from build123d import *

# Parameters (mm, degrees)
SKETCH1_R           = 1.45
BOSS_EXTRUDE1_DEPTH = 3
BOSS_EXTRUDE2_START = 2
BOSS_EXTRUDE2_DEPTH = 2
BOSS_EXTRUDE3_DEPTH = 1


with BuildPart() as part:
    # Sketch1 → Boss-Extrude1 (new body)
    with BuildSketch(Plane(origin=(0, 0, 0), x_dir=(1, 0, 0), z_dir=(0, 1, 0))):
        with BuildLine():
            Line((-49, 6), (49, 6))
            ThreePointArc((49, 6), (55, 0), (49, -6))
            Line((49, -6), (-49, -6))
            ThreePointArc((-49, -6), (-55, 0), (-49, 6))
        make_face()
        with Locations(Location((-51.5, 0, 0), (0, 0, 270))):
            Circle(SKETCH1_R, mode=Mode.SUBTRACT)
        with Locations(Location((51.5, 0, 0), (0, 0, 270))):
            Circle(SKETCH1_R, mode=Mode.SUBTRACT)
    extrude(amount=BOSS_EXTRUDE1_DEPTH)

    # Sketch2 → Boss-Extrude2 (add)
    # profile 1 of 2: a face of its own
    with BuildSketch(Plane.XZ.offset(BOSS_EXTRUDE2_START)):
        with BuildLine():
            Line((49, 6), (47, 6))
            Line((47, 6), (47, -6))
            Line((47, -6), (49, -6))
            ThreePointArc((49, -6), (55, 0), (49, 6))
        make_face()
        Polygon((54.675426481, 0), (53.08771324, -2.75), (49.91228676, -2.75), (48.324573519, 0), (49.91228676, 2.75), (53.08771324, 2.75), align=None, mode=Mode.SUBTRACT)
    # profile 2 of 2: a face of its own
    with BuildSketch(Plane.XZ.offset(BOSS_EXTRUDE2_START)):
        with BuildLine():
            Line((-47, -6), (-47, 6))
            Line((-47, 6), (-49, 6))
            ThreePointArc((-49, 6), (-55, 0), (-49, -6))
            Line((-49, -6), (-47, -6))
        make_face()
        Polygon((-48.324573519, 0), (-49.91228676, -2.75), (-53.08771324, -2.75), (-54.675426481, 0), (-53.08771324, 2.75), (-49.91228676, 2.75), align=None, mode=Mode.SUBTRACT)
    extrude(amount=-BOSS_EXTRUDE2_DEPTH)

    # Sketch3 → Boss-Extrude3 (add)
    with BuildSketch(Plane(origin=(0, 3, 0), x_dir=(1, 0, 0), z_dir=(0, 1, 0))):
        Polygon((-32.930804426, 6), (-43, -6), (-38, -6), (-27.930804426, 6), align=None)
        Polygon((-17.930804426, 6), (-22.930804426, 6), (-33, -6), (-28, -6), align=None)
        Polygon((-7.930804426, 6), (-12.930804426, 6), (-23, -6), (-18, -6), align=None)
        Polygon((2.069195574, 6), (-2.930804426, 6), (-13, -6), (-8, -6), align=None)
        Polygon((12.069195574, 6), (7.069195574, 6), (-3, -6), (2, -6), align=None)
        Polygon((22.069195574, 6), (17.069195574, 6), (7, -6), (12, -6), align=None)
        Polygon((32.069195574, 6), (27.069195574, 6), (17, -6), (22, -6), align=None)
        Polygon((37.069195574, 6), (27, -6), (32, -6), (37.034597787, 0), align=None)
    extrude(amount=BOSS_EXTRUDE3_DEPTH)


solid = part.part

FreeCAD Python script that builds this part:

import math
import FreeCAD as App
import Part
import Sketcher

V = App.Vector
Q = App.Units.Quantity


def add_polygon(sketch, points):
    """Adds a closed chain of lines whose ends are joined by coincident constraints."""
    first, n = sketch.GeometryCount, len(points)
    for a, b in zip(points, points[1:] + points[:1]):
        sketch.addGeometry(Part.LineSegment(App.Vector(*a, 0), App.Vector(*b, 0)), False)
    for i in range(n):
        sketch.addConstraint(Sketcher.Constraint("Coincident", first + i, 2, first + (i + 1) % n, 1))

doc = App.newDocument("Part")
body = doc.addObject("PartDesign::Body", "Body")

# Sketch on XZ plane
sketch1 = body.newObject("Sketcher::SketchObject", "Sketch")
sketch1.AttachmentSupport = (doc.getObject("XZ_Plane"), [""])
sketch1.MapMode = "FlatFace"
sketch1.addGeometry(Part.LineSegment(V(49, -6, 0), V(-49, -6, 0)), False)
sketch1.addGeometry(Part.ArcOfCircle(Part.Circle(V(-49, 0, 0), V(0, 0, 1), 6), math.radians(90), math.radians(270)), False)
sketch1.addGeometry(Part.LineSegment(V(-49, 6, 0), V(49, 6, 0)), False)
sketch1.addGeometry(Part.ArcOfCircle(Part.Circle(V(49, 0, 0), V(0, 0, 1), 6), math.radians(-90), math.radians(90)), False)
sketch1.addGeometry(Part.Circle(V(51.5, 0, 0), V(0, 0, 1), 1.4), False)
sketch1.addGeometry(Part.Circle(V(-51.5, 0, 0), V(0, 0, 1), 1.4), False)
sketch1.addConstraint(Sketcher.Constraint("Tangent", 0, 2, 1, 2))
sketch1.addConstraint(Sketcher.Constraint("Tangent", 1, 1, 2, 1))
sketch1.addConstraint(Sketcher.Constraint("Tangent", 2, 2, 3, 2))
sketch1.addConstraint(Sketcher.Constraint("Tangent", 3, 1, 0, 1))
sketch1.addConstraint(Sketcher.Constraint("Horizontal", 0))
sketch1.addConstraint(Sketcher.Constraint("Horizontal", 2))
sketch1.addConstraint(Sketcher.Constraint("Equal", 4, 5))
sketch1.addConstraint(Sketcher.Constraint("Symmetric", 1, 3, 3, 3, -1, 1))
sketch1.addConstraint(Sketcher.Constraint("Symmetric", 4, 3, 5, 3, -1, 1))
sketch1.addConstraint(Sketcher.Constraint("PointOnObject", 4, 3, -1))
sketch1.addConstraint(Sketcher.Constraint("Radius", 1, Q("6 mm")))
sketch1.addConstraint(Sketcher.Constraint("Diameter", 4, Q("2.9 mm")))
sketch1.addConstraint(Sketcher.Constraint("DistanceX", 0, 2, 0, 1, Q("98 mm")))
sketch1.addConstraint(Sketcher.Constraint("DistanceX", 5, 3, 4, 3, Q("103 mm")))
pad1 = body.newObject("PartDesign::Pad", "Pad")
pad1.Profile = sketch1
pad1.Length = 3
pad1.Reversed = True

# Sketch on XZ plane
sketch2 = body.newObject("Sketcher::SketchObject", "Sketch001")
sketch2.AttachmentSupport = (doc.getObject("XZ_Plane"), [""])
sketch2.MapMode = "FlatFace"
sketch2.AttachmentOffset = App.Placement(V(0, 0, 2), App.Rotation())
sketch2.addGeometry(Part.LineSegment(V(49, 6, 0), V(47, 6, 0)), False)  # 0
sketch2.addGeometry(Part.LineSegment(V(47, 6, 0), V(47, -6, 0)), False)  # 1
sketch2.addGeometry(Part.LineSegment(V(47, -6, 0), V(49, -6, 0)), False)  # 2
sketch2.addGeometry(Part.ArcOfCircle(Part.Circle(V(49, 0, 0), V(0, 0, 1), 6), math.radians(-90), math.radians(90)), False)  # 3
add_polygon(sketch2, [(53.1, 2.8), (54.7, 0), (53.1, -2.8), (49.9, -2.8), (48.3, 0), (49.9, 2.8)])  # lines 4-9
sketch2.addGeometry(Part.LineSegment(V(-47, -6, 0), V(-47, 6, 0)), False)  # 10
sketch2.addGeometry(Part.LineSegment(V(-47, 6, 0), V(-49, 6, 0)), False)  # 11
sketch2.addGeometry(Part.ArcOfCircle(Part.Circle(V(-49, 0, 0), V(0, 0, 1), 6), math.radians(90), math.radians(270)), False)  # 12
sketch2.addGeometry(Part.LineSegment(V(-49, -6, 0), V(-47, -6, 0)), False)  # 13
add_polygon(sketch2, [(-49.9, 2.8), (-48.3, 0), (-49.9, -2.8), (-53.1, -2.8), (-54.7, 0), (-53.1, 2.8)])  # lines 14-19
sketch2.addConstraint(Sketcher.Constraint("Coincident", 0, 2, 1, 1))
sketch2.addConstraint(Sketcher.Constraint("Coincident", 1, 2, 2, 1))
sketch2.addConstraint(Sketcher.Constraint("Tangent", 2, 2, 3, 1))
sketch2.addConstraint(Sketcher.Constraint("Tangent", 3, 2, 0, 1))
sketch2.addConstraint(Sketcher.Constraint("Coincident", 10, 2, 11, 1))
sketch2.addConstraint(Sketcher.Constraint("Tangent", 11, 2, 12, 1))
sketch2.addConstraint(Sketcher.Constraint("Tangent", 12, 2, 13, 1))
sketch2.addConstraint(Sketcher.Constraint("Coincident", 13, 2, 10, 1))
sketch2.addConstraint(Sketcher.Constraint("Horizontal", 0))
sketch2.addConstraint(Sketcher.Constraint("Vertical", 1))
sketch2.addConstraint(Sketcher.Constraint("Horizontal", 2))
sketch2.addConstraint(Sketcher.Constraint("Horizontal", 6))
sketch2.addConstraint(Sketcher.Constraint("Horizontal", 9))
sketch2.addConstraint(Sketcher.Constraint("Vertical", 10))
sketch2.addConstraint(Sketcher.Constraint("Horizontal", 11))
sketch2.addConstraint(Sketcher.Constraint("Horizontal", 13))
sketch2.addConstraint(Sketcher.Constraint("Horizontal", 16))
sketch2.addConstraint(Sketcher.Constraint("Horizontal", 19))
sketch2.addConstraint(Sketcher.Constraint("Equal", 3, 12))
sketch2.addConstraint(Sketcher.Constraint("Symmetric", 3, 3, 12, 3, -1, 1))
sketch2.addConstraint(Sketcher.Constraint("Symmetric", 7, 2, 14, 2, -1, 1))
sketch2.addConstraint(Sketcher.Constraint("Symmetric", 8, 2, 15, 2, -1, 1))
sketch2.addConstraint(Sketcher.Constraint("Symmetric", 4, 2, 17, 2, -1, 1))
sketch2.addConstraint(Sketcher.Constraint("Symmetric", 5, 2, 18, 2, -1, 1))
sketch2.addConstraint(Sketcher.Constraint("Symmetric", 0, 2, 10, 2, -2))
sketch2.addConstraint(Sketcher.Constraint("Symmetric", 6, 2, 15, 2, -2))
sketch2.addConstraint(Sketcher.Constraint("PointOnObject", 4, 2, -1))
sketch2.addConstraint(Sketcher.Constraint("PointOnObject", 7, 2, -1))
sketch2.addConstraint(Sketcher.Constraint("Parallel", 4, 7))
sketch2.addConstraint(Sketcher.Constraint("Parallel", 5, 8))
sketch2.addConstraint(Sketcher.Constraint("Parallel", 7, 14))
sketch2.addConstraint(Sketcher.Constraint("Parallel", 14, 17))
sketch2.addConstraint(Sketcher.Constraint("Radius", 3, Q("6 mm")))
sketch2.addConstraint(Sketcher.Constraint("DistanceX", 0, 2, 0, 1, Q("2 mm")))
sketch2.addConstraint(Sketcher.Constraint("Angle", 4, Q("-60 deg")))
sketch2.addConstraint(Sketcher.Constraint("DistanceX", -1, 1, 3, 3, Q("49 mm")))
sketch2.addConstraint(Sketcher.Constraint("DistanceY", 6, 2, 8, 2, Q("5.5 mm")))
sketch2.addConstraint(Sketcher.Constraint("DistanceX", 6, 2, 6, 1, Q("3.175426 mm")))
sketch2.addConstraint(Sketcher.Constraint("DistanceX", -1, 1, 4, 2, Q("54.675426 mm")))
pad2 = body.newObject("PartDesign::Pad", "Pad001")
pad2.Profile = sketch2
pad2.Length = 2
pad2.Reversed = True

# Sketch on XZ plane
sketch3 = body.newObject("Sketcher::SketchObject", "Sketch002")
sketch3.AttachmentSupport = (doc.getObject("XZ_Plane"), [""])
sketch3.MapMode = "FlatFace"
sketch3.AttachmentOffset = App.Placement(V(0, 0, -3), App.Rotation())
add_polygon(sketch3, [(-33, -6), (-43, 6), (-38, 6), (-28, -6)])  # lines 0-3
add_polygon(sketch3, [(-18, -6), (-23, -6), (-33, 6), (-28, 6)])  # lines 4-7
add_polygon(sketch3, [(-8, -6), (-13, -6), (-23, 6), (-18, 6)])  # lines 8-11
add_polygon(sketch3, [(2, -6), (-3, -6), (-13, 6), (-8, 6)])  # lines 12-15
add_polygon(sketch3, [(12, -6), (7, -6), (-3, 6), (2, 6)])  # lines 16-19
add_polygon(sketch3, [(22, -6), (17, -6), (7, 6), (12, 6)])  # lines 20-23
add_polygon(sketch3, [(32, -6), (27, -6), (17, 6), (22, 6)])  # lines 24-27
add_polygon(sketch3, [(37, -6), (27, 6), (32, 6), (37, 0)])  # lines 28-31
sketch3.addConstraint(Sketcher.Constraint("Horizontal", 1))
sketch3.addConstraint(Sketcher.Constraint("Horizontal", 3))
sketch3.addConstraint(Sketcher.Constraint("Horizontal", 4))
sketch3.addConstraint(Sketcher.Constraint("Horizontal", 6))
sketch3.addConstraint(Sketcher.Constraint("Horizontal", 8))
sketch3.addConstraint(Sketcher.Constraint("Horizontal", 10))
sketch3.addConstraint(Sketcher.Constraint("Horizontal", 12))
sketch3.addConstraint(Sketcher.Constraint("Horizontal", 14))
sketch3.addConstraint(Sketcher.Constraint("Horizontal", 16))
sketch3.addConstraint(Sketcher.Constraint("Horizontal", 18))
sketch3.addConstraint(Sketcher.Constraint("Horizontal", 20))
sketch3.addConstraint(Sketcher.Constraint("Horizontal", 22))
sketch3.addConstraint(Sketcher.Constraint("Horizontal", 24))
sketch3.addConstraint(Sketcher.Constraint("Horizontal", 26))
sketch3.addConstraint(Sketcher.Constraint("Horizontal", 29))
sketch3.addConstraint(Sketcher.Constraint("PointOnObject", 30, 2, -1))
sketch3.addConstraint(Sketcher.Constraint("Parallel", 0, 2))
sketch3.addConstraint(Sketcher.Constraint("Parallel", 2, 5))
sketch3.addConstraint(Sketcher.Constraint("Parallel", 5, 7))
sketch3.addConstraint(Sketcher.Constraint("Parallel", 7, 9))
sketch3.addConstraint(Sketcher.Constraint("Parallel", 9, 11))
sketch3.addConstraint(Sketcher.Constraint("Parallel", 11, 13))
sketch3.addConstraint(Sketcher.Constraint("Parallel", 13, 15))
sketch3.addConstraint(Sketcher.Constraint("Parallel", 15, 17))
sketch3.addConstraint(Sketcher.Constraint("Parallel", 17, 19))
sketch3.addConstraint(Sketcher.Constraint("Parallel", 19, 21))
sketch3.addConstraint(Sketcher.Constraint("Parallel", 21, 23))
sketch3.addConstraint(Sketcher.Constraint("Parallel", 23, 25))
sketch3.addConstraint(Sketcher.Constraint("Parallel", 25, 27))
sketch3.addConstraint(Sketcher.Constraint("Parallel", 27, 28))
sketch3.addConstraint(Sketcher.Constraint("Parallel", 28, 30))
sketch3.addConstraint(Sketcher.Constraint("Horizontal", 3, 2, 4, 2))
sketch3.addConstraint(Sketcher.Constraint("Horizontal", 1, 2, 5, 2))
sketch3.addConstraint(Sketcher.Constraint("Horizontal", 7, 2, 8, 2))
sketch3.addConstraint(Sketcher.Constraint("Horizontal", 6, 2, 9, 2))
sketch3.addConstraint(Sketcher.Constraint("Horizontal", 11, 2, 12, 2))
sketch3.addConstraint(Sketcher.Constraint("Horizontal", 10, 2, 13, 2))
sketch3.addConstraint(Sketcher.Constraint("Horizontal", 15, 2, 16, 2))
sketch3.addConstraint(Sketcher.Constraint("Horizontal", 14, 2, 17, 2))
sketch3.addConstraint(Sketcher.Constraint("Horizontal", 19, 2, 20, 2))
sketch3.addConstraint(Sketcher.Constraint("Horizontal", 18, 2, 21, 2))
sketch3.addConstraint(Sketcher.Constraint("Horizontal", 23, 2, 24, 2))
sketch3.addConstraint(Sketcher.Constraint("Horizontal", 22, 2, 25, 2))
sketch3.addConstraint(Sketcher.Constraint("Horizontal", 26, 2, 28, 2))
sketch3.addConstraint(Sketcher.Constraint("Horizontal", 27, 2, 31, 2))
sketch3.addConstraint(Sketcher.Constraint("Equal", 3, 4))
sketch3.addConstraint(Sketcher.Constraint("Equal", 6, 8))
sketch3.addConstraint(Sketcher.Constraint("Equal", 10, 12))
sketch3.addConstraint(Sketcher.Constraint("Equal", 14, 16))
sketch3.addConstraint(Sketcher.Constraint("Equal", 18, 20))
sketch3.addConstraint(Sketcher.Constraint("Equal", 22, 24))
sketch3.addConstraint(Sketcher.Constraint("Equal", 26, 29))
sketch3.addConstraint(Sketcher.Constraint("DistanceX", 1, 1, 1, 2, Q("5 mm")))
sketch3.addConstraint(Sketcher.Constraint("Angle", 0, Q("130 deg")))
sketch3.addConstraint(Sketcher.Constraint("DistanceX", 0, 2, -1, 1, Q("43 mm")))
sketch3.addConstraint(Sketcher.Constraint("DistanceY", -1, 1, 0, 2, Q("6 mm")))
sketch3.addConstraint(Sketcher.Constraint("DistanceY", 2, 2, -1, 1, Q("6 mm")))
sketch3.addConstraint(Sketcher.Constraint("DistanceX", 5, 2, -1, 1, Q("33 mm")))
sketch3.addConstraint(Sketcher.Constraint("DistanceX", 9, 2, -1, 1, Q("23 mm")))
sketch3.addConstraint(Sketcher.Constraint("DistanceX", 13, 2, -1, 1, Q("13 mm")))
sketch3.addConstraint(Sketcher.Constraint("DistanceX", 17, 2, -1, 1, Q("3 mm")))
sketch3.addConstraint(Sketcher.Constraint("DistanceX", -1, 1, 21, 2, Q("7 mm")))
sketch3.addConstraint(Sketcher.Constraint("DistanceX", -1, 1, 25, 2, Q("17 mm")))
sketch3.addConstraint(Sketcher.Constraint("DistanceX", -1, 1, 28, 2, Q("27 mm")))
pad3 = body.newObject("PartDesign::Pad", "Pad002")
pad3.Profile = sketch3
pad3.Length = 1
pad3.Reversed = True

doc.recompute()
